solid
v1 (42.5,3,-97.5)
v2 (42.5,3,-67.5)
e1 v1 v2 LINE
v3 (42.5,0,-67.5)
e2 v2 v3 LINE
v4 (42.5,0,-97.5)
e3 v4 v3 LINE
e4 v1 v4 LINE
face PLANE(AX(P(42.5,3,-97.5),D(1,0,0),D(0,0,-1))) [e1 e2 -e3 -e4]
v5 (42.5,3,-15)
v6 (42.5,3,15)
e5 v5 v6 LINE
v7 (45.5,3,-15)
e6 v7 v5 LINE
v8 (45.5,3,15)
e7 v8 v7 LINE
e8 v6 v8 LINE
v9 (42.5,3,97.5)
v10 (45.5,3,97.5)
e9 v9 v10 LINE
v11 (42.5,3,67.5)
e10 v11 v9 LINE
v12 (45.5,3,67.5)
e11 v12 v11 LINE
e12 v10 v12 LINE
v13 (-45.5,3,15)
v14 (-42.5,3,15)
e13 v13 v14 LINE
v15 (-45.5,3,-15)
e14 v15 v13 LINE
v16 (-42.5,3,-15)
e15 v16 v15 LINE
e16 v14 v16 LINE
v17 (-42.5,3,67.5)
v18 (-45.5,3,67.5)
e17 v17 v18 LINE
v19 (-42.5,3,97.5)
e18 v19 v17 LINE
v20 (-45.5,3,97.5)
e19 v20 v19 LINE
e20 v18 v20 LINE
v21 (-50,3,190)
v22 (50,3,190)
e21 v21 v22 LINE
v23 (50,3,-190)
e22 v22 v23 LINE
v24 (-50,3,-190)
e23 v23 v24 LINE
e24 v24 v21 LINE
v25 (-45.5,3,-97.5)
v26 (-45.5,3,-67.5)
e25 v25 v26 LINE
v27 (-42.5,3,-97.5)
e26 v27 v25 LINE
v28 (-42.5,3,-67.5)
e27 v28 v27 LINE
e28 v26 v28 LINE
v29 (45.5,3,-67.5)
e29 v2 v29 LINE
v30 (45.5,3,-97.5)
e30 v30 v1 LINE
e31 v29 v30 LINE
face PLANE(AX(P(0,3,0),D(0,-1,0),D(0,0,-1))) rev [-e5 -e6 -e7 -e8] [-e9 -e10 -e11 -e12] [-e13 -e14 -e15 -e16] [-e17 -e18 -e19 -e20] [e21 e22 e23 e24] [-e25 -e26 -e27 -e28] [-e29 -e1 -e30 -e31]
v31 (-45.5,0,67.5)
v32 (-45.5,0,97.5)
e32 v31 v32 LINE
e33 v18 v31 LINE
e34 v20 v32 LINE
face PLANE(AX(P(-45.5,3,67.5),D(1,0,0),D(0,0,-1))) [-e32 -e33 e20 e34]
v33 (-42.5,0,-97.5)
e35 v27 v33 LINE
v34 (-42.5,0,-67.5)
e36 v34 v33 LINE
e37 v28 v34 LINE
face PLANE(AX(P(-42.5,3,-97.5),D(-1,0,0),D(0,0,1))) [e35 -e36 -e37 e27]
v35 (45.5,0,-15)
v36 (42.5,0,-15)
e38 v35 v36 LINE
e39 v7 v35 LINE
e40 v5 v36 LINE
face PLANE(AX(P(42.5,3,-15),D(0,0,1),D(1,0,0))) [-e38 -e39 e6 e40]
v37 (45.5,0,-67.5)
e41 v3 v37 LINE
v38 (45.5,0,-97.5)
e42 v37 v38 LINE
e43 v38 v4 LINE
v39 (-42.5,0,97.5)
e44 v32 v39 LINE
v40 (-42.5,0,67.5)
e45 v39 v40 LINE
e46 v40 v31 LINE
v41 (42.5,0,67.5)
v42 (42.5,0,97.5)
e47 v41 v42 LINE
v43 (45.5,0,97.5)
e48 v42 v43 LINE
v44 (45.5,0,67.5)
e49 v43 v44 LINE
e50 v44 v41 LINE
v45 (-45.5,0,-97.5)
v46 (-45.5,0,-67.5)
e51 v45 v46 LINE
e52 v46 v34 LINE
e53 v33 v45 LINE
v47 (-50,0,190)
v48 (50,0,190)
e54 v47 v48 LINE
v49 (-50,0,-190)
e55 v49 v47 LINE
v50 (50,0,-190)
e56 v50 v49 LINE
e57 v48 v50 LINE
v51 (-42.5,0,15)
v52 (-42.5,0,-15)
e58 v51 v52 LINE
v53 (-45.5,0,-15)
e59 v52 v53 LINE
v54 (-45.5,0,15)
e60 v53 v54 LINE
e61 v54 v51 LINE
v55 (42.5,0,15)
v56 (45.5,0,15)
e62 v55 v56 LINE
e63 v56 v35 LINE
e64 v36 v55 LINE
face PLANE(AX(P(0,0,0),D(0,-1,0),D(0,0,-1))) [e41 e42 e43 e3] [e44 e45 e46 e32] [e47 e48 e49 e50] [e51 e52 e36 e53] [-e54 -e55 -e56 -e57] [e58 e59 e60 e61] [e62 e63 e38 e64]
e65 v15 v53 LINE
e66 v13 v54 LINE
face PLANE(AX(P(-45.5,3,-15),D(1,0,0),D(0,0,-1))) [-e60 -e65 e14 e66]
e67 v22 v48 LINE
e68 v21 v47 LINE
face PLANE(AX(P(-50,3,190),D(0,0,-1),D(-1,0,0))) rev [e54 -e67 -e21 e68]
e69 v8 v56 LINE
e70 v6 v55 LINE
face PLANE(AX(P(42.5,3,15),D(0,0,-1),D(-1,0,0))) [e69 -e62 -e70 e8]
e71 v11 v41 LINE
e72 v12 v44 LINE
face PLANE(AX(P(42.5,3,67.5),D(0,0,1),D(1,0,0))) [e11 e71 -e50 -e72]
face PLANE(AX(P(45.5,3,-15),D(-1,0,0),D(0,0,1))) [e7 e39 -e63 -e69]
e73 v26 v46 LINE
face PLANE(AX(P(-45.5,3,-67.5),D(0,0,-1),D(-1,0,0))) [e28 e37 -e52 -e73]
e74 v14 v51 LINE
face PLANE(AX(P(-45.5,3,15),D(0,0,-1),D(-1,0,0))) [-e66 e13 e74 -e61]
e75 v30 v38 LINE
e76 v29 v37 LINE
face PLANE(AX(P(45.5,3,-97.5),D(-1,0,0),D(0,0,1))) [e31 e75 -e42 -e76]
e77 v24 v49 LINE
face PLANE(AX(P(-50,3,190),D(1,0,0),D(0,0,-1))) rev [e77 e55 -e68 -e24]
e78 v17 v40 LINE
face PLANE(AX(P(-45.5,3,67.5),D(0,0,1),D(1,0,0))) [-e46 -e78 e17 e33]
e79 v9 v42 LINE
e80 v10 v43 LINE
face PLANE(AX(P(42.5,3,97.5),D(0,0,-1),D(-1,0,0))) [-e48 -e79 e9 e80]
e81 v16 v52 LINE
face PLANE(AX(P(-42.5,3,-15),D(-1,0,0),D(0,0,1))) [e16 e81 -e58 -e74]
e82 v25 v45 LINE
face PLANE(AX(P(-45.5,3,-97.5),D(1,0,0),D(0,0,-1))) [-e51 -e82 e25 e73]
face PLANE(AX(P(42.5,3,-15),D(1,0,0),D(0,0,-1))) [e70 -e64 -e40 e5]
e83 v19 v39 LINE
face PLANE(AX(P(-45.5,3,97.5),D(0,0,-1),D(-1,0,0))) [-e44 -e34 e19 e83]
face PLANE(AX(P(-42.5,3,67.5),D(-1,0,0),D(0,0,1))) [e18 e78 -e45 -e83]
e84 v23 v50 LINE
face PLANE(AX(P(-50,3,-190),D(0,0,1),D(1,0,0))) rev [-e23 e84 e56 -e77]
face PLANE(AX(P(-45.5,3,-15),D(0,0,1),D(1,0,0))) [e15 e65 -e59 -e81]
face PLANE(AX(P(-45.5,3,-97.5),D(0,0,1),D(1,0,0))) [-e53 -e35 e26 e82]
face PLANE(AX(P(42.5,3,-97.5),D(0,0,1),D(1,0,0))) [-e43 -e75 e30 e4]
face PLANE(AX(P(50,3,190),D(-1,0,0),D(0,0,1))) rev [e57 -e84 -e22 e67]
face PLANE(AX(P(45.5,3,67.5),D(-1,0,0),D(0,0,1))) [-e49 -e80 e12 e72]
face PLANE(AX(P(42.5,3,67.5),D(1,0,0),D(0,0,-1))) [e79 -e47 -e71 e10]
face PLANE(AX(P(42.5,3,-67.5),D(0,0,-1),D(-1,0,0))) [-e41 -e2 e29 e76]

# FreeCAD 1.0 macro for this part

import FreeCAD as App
import Part
import Sketcher

V = App.Vector

doc = App.newDocument("Part")
body = doc.addObject("PartDesign::Body", "Body")

sketch1 = body.newObject("Sketcher::SketchObject", "Sketch")
sketch1.AttachmentSupport = (doc.getObject("XZ_Plane"), [""])
sketch1.MapMode = "FlatFace"
sketch1.addGeometry([
    Part.LineSegment(V(-50, -190, 0), V(-50, 190, 0)),
    Part.LineSegment(V(-50, 190, 0), V(50, 190, 0)),
    Part.LineSegment(V(50, 190, 0), V(50, -190, 0)),
    Part.LineSegment(V(50, -190, 0), V(-50, -190, 0)),
    Part.LineSegment(V(-42.5, 97.5, 0), V(-45.5, 97.5, 0)),
    Part.LineSegment(V(-45.5, 97.5, 0), V(-45.5, 67.5, 0)),
    Part.LineSegment(V(-45.5, 67.5, 0), V(-42.5, 67.5, 0)),
    Part.LineSegment(V(-42.5, 67.5, 0), V(-42.5, 97.5, 0)),
    Part.LineSegment(V(45.5, 97.5, 0), V(42.5, 97.5, 0)),
    Part.LineSegment(V(42.5, 97.5, 0), V(42.5, 67.5, 0)),
    Part.LineSegment(V(42.5, 67.5, 0), V(45.5, 67.5, 0)),
    Part.LineSegment(V(45.5, 67.5, 0), V(45.5, 97.5, 0)),
    Part.LineSegment(V(-42.5, 15, 0), V(-45.5, 15, 0)),
    Part.LineSegment(V(-45.5, 15, 0), V(-45.5, -15, 0)),
    Part.LineSegment(V(-45.5, -15, 0), V(-42.5, -15, 0)),
    Part.LineSegment(V(-42.5, -15, 0), V(-42.5, 15, 0)),
    Part.LineSegment(V(-42.5, -67.5, 0), V(-45.5, -67.5, 0)),
    Part.LineSegment(V(-45.5, -67.5, 0), V(-45.5, -97.5, 0)),
    Part.LineSegment(V(-45.5, -97.5, 0), V(-42.5, -97.5, 0)),
    Part.LineSegment(V(-42.5, -97.5, 0), V(-42.5, -67.5, 0)),
    Part.LineSegment(V(45.5, 15, 0), V(42.5, 15, 0)),
    Part.LineSegment(V(42.5, 15, 0), V(42.5, -15, 0)),
    Part.LineSegment(V(42.5, -15, 0), V(45.5, -15, 0)),
    Part.LineSegment(V(45.5, -15, 0), V(45.5, 15, 0)),
    Part.LineSegment(V(45.5, -67.5, 0), V(42.5, -67.5, 0)),
    Part.LineSegment(V(42.5, -67.5, 0), V(42.5, -97.5, 0)),
    Part.LineSegment(V(42.5, -97.5, 0), V(45.5, -97.5, 0)),
    Part.LineSegment(V(45.5, -97.5, 0), V(45.5, -67.5, 0)),
], False)
sketch1.addConstraint([
    Sketcher.Constraint("Coincident", 0, 2, 1, 1),
    Sketcher.Constraint("Coincident", 1, 2, 2, 1),
    Sketcher.Constraint("Coincident", 2, 2, 3, 1),
    Sketcher.Constraint("Coincident", 3, 2, 0, 1),
    Sketcher.Constraint("Coincident", 4, 2, 5, 1),
    Sketcher.Constraint("Coincident", 5, 2, 6, 1),
    Sketcher.Constraint("Coincident", 6, 2, 7, 1),
    Sketcher.Constraint("Coincident", 7, 2, 4, 1),
    Sketcher.Constraint("Coincident", 8, 2, 9, 1),
    Sketcher.Constraint("Coincident", 9, 2, 10, 1),
    Sketcher.Constraint("Coincident", 10, 2, 11, 1),
    Sketcher.Constraint("Coincident", 11, 2, 8, 1),
    Sketcher.Constraint("Coincident", 12, 2, 13, 1),
    Sketcher.Constraint("Coincident", 13, 2, 14, 1),
    Sketcher.Constraint("Coincident", 14, 2, 15, 1),
    Sketcher.Constraint("Coincident", 15, 2, 12, 1),
    Sketcher.Constraint("Coincident", 16, 2, 17, 1),
    Sketcher.Constraint("Coincident", 17, 2, 18, 1),
    Sketcher.Constraint("Coincident", 18, 2, 19, 1),
    Sketcher.Constraint("Coincident", 19, 2, 16, 1),
    Sketcher.Constraint("Coincident", 20, 2, 21, 1),
    Sketcher.Constraint("Coincident", 21, 2, 22, 1),
    Sketcher.Constraint("Coincident", 22, 2, 23, 1),
    Sketcher.Constraint("Coincident", 23, 2, 20, 1),
    Sketcher.Constraint("Coincident", 24, 2, 25, 1),
    Sketcher.Constraint("Coincident", 25, 2, 26, 1),
    Sketcher.Constraint("Coincident", 26, 2, 27, 1),
    Sketcher.Constraint("Coincident", 27, 2, 24, 1),
    Sketcher.Constraint("Vertical", 0),
    Sketcher.Constraint("Horizontal", 1),
    Sketcher.Constraint("Vertical", 2),
    Sketcher.Constraint("Horizontal", 3),
    Sketcher.Constraint("Horizontal", 4),
    Sketcher.Constraint("Vertical", 5),
    Sketcher.Constraint("Horizontal", 6),
    Sketcher.Constraint("Vertical", 7),
    Sketcher.Constraint("Horizontal", 8),
    Sketcher.Constraint("Vertical", 9),
    Sketcher.Constraint("Horizontal", 10),
    Sketcher.Constraint("Vertical", 11),
    Sketcher.Constraint("Horizontal", 12),
    Sketcher.Constraint("Vertical", 13),
    Sketcher.Constraint("Horizontal", 14),
    Sketcher.Constraint("Vertical", 15),
    Sketcher.Constraint("Horizontal", 16),
    Sketcher.Constraint("Vertical", 17),
    Sketcher.Constraint("Horizontal", 18),
    Sketcher.Constraint("Vertical", 19),
    Sketcher.Constraint("Horizontal", 20),
    Sketcher.Constraint("Vertical", 21),
    Sketcher.Constraint("Horizontal", 22),
    Sketcher.Constraint("Vertical", 23),
    Sketcher.Constraint("Horizontal", 24),
    Sketcher.Constraint("Vertical", 25),
    Sketcher.Constraint("Horizontal", 26),
    Sketcher.Constraint("Vertical", 27),
    Sketcher.Constraint("Symmetric", 0, 2, 2, 2, -1, 1),
    Sketcher.Constraint("Symmetric", 10, 2, 16, 2, -1, 1),
    Sketcher.Constraint("Symmetric", 8, 2, 18, 2, -1, 1),
    Sketcher.Constraint("Symmetric", 14, 2, 20, 2, -1, 1),
    Sketcher.Constraint("Symmetric", 12, 2, 22, 2, -1, 1),
    Sketcher.Constraint("Symmetric", 6, 2, 24, 2, -1, 1),
    Sketcher.Constraint("Symmetric", 4, 2, 26, 2, -1, 1),
    Sketcher.Constraint("Symmetric", 7, 2, 8, 2, -2),
    Sketcher.Constraint("Symmetric", 5, 2, 10, 2, -2),
    Sketcher.Constraint("Horizontal", 15, 2, 20, 2),
    Sketcher.Constraint("Vertical", 5, 2, 12, 2),
    Sketcher.Constraint("Vertical", 7, 2, 14, 2),
    Sketcher.Constraint("Equal", 11, 13),
    Sketcher.Constraint("DistanceX", 1, 1, 1, 2, 100.0),
    Sketcher.Constraint("DistanceX", 4, 2, 4, 1, 3.0),
    Sketcher.Constraint("DistanceY", 0, 1, 0, 2, 380.0),
    Sketcher.Constraint("DistanceY", 5, 2, 5, 1, 30.0),
    Sketcher.Constraint("DistanceX", 7, 2, 8, 2, 85.0),
    Sketcher.Constraint("DistanceY", -1, 1, 4, 2, 97.5),
])
pad1 = body.newObject("PartDesign::Pad", "Pad")
pad1.Profile = sketch1
pad1.Length = 3
pad1.Reversed = True

doc.recompute()
